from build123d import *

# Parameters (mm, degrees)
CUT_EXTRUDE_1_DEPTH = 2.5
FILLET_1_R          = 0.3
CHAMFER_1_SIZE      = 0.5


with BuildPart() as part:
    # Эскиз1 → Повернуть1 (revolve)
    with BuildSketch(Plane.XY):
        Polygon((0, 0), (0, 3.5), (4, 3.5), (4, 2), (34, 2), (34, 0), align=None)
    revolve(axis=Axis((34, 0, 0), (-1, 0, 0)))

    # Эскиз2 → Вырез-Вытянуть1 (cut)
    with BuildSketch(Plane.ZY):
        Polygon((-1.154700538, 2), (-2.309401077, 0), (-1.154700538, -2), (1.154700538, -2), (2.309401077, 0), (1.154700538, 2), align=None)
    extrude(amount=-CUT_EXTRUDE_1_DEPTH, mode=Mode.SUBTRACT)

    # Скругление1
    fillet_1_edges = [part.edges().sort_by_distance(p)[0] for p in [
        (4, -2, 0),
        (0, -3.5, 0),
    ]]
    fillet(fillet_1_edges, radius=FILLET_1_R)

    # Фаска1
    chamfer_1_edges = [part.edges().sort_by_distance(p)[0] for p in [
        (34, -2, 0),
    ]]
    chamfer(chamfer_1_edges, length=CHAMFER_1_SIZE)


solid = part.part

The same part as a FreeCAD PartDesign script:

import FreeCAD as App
import Part
import Sketcher
Q = App.Units.Quantity


def edges_at(feature, points):
    """Names of the edges that pass closest to the given points."""
    edges = feature.Shape.Edges
    near = lambda p: min(range(len(edges)), key=lambda i: edges[i].distToShape(Part.Vertex(*p))[0])
    return sorted({f"Edge{near(p) + 1}" for p in points})


def add_polygon(sketch, points):
    """Adds a closed chain of lines whose ends are joined by coincident constraints."""
    first, n = sketch.GeometryCount, len(points)
    for a, b in zip(points, points[1:] + points[:1]):
        sketch.addGeometry(Part.LineSegment(App.Vector(*a, 0), App.Vector(*b, 0)), False)
    for i in range(n):
        sketch.addConstraint(Sketcher.Constraint("Coincident", first + i, 2, first + (i + 1) % n, 1))

doc = App.newDocument("Part")
body = doc.addObject("PartDesign::Body", "Body")

sketch1 = body.newObject("Sketcher::SketchObject", "Sketch")
sketch1.AttachmentSupport = (doc.getObject("XY_Plane"), [""])
sketch1.MapMode = "FlatFace"
add_polygon(sketch1, [(0, 3.5), (0, 0), (34, 0), (34, 2), (4, 2), (4, 3.5)])
sketch1.addConstraint([
    Sketcher.Constraint("Vertical", 0),
    Sketcher.Constraint("Horizontal", 1),
    Sketcher.Constraint("Vertical", 2),
    Sketcher.Constraint("Horizontal", 3),
    Sketcher.Constraint("Vertical", 4),
    Sketcher.Constraint("Horizontal", 5),
    Sketcher.Constraint("Coincident", 0, 2, -1, 1),
    Sketcher.Constraint("DistanceX", 1, 1, 1, 2, 34.0),
    Sketcher.Constraint("DistanceX", 3, 2, 3, 1, 30.0),
    Sketcher.Constraint("DistanceY", 2, 1, 2, 2, 2.0),
    Sketcher.Constraint("DistanceY", 0, 2, 0, 1, 3.5),
])
revolution = body.newObject("PartDesign::Revolution", "Revolution")
revolution.Profile = sketch1
revolution.ReferenceAxis = (sketch1, ["H_Axis"])
revolution.Angle = 360

sketch2 = body.newObject("Sketcher::SketchObject", "Sketch001")
sketch2.AttachmentSupport = (doc.getObject("YZ_Plane"), [""])
sketch2.MapMode = "FlatFace"
add_polygon(sketch2, [(2, -1.2), (0, -2.3), (-2, -1.2), (-2, 1.2), (0, 2.3), (2, 1.2)])
sketch2.addConstraint([
    Sketcher.Constraint("Vertical", 2),
    Sketcher.Constraint("Vertical", 5),
    Sketcher.Constraint("Symmetric", 0, 2, 3, 2, -1, 1),
    Sketcher.Constraint("Symmetric", 1, 2, 4, 2, -1, 1),
    Sketcher.Constraint("PointOnObject", 0, 2, -2),
    Sketcher.Constraint("Parallel", 0, 3),
    Sketcher.Constraint("Horizontal", 2, 2, 4, 2),
    Sketcher.Constraint("Angle", 0, Q("-150 deg")),
    Sketcher.Constraint("DistanceX", 1, 2, -1, 1, 2.0),
    Sketcher.Constraint("DistanceY", 2, 1, 2, 2, 2.309401),
])
pocket1 = body.newObject("PartDesign::Pocket", "Pocket")
pocket1.Profile = sketch2
pocket1.Length = 2.5
pocket1.Reversed = True
doc.recompute()

fillet = body.newObject("PartDesign::Fillet", "Fillet")
fillet.Base = (pocket1, edges_at(pocket1, [(4, -2, 0), (0, -3.5, 0)]))
fillet.Radius = 0.3
doc.recompute()

chamfer = body.newObject("PartDesign::Chamfer", "Chamfer")
chamfer.Base = (fillet, edges_at(fillet, [(34, -2, 0)]))
chamfer.Size = 0.5

doc.recompute()
